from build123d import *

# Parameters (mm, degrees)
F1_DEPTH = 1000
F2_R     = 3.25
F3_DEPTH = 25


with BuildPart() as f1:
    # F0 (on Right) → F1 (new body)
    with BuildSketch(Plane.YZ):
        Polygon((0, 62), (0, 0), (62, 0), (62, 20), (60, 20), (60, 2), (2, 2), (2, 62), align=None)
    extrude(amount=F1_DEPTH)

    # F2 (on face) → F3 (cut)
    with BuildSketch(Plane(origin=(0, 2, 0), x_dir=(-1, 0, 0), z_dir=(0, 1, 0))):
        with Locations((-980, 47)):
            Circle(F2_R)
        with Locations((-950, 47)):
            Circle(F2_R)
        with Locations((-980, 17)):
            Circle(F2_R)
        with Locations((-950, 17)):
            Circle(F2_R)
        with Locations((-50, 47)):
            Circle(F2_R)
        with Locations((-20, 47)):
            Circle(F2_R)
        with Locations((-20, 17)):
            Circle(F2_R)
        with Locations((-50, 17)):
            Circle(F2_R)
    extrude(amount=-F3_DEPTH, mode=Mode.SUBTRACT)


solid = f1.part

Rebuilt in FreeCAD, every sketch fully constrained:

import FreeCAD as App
import Part
import Sketcher

V = App.Vector
Q = App.Units.Quantity

doc = App.newDocument("Part")
body = doc.addObject("PartDesign::Body", "Body")

sketch1 = doc.addObject("Sketcher::SketchObject", "Sketch")
body.addObject(sketch1)
sketch1.AttachmentSupport = (doc.YZ_Plane, [""])
sketch1.MapMode = "FlatFace"
sketch1.addGeometry(Part.LineSegment(V(0, 62, 0), V(0, 0, 0)), False)
sketch1.addGeometry(Part.LineSegment(V(0, 0, 0), V(62, 0, 0)), False)
sketch1.addGeometry(Part.LineSegment(V(62, 0, 0), V(62, 20, 0)), False)
sketch1.addGeometry(Part.LineSegment(V(62, 20, 0), V(60, 20, 0)), False)
sketch1.addGeometry(Part.LineSegment(V(60, 20, 0), V(60, 2, 0)), False)
sketch1.addGeometry(Part.LineSegment(V(60, 2, 0), V(2, 2, 0)), False)
sketch1.addGeometry(Part.LineSegment(V(2, 2, 0), V(2, 62, 0)), False)
sketch1.addGeometry(Part.LineSegment(V(2, 62, 0), V(0, 62, 0)), False)
sketch1.addConstraint(Sketcher.Constraint("Coincident", 0, 2, 1, 1))
sketch1.addConstraint(Sketcher.Constraint("Coincident", 1, 2, 2, 1))
sketch1.addConstraint(Sketcher.Constraint("Coincident", 2, 2, 3, 1))
sketch1.addConstraint(Sketcher.Constraint("Coincident", 3, 2, 4, 1))
sketch1.addConstraint(Sketcher.Constraint("Coincident", 4, 2, 5, 1))
sketch1.addConstraint(Sketcher.Constraint("Coincident", 5, 2, 6, 1))
sketch1.addConstraint(Sketcher.Constraint("Coincident", 6, 2, 7, 1))
sketch1.addConstraint(Sketcher.Constraint("Coincident", 7, 2, 0, 1))
sketch1.addConstraint(Sketcher.Constraint("Vertical", 0))
sketch1.addConstraint(Sketcher.Constraint("Horizontal", 1))
sketch1.addConstraint(Sketcher.Constraint("Vertical", 2))
sketch1.addConstraint(Sketcher.Constraint("Horizontal", 3))
sketch1.addConstraint(Sketcher.Constraint("Vertical", 4))
sketch1.addConstraint(Sketcher.Constraint("Horizontal", 5))
sketch1.addConstraint(Sketcher.Constraint("Vertical", 6))
sketch1.addConstraint(Sketcher.Constraint("Horizontal", 7))
sketch1.addConstraint(Sketcher.Constraint("Coincident", 0, 2, -1, 1))
sketch1.addConstraint(Sketcher.Constraint("Equal", 3, 7))
sketch1.addConstraint(Sketcher.Constraint("Equal", 1, 0))
sketch1.addConstraint(Sketcher.Constraint("DistanceX", 1, 1, 1, 2, Q("62 mm")))
sketch1.addConstraint(Sketcher.Constraint("DistanceX", 3, 2, 3, 1, Q("2 mm")))
sketch1.addConstraint(Sketcher.Constraint("DistanceY", 2, 1, 2, 2, Q("20 mm")))
sketch1.addConstraint(Sketcher.Constraint("DistanceY", 4, 2, 4, 1, Q("18 mm")))
pad1 = doc.addObject("PartDesign::Pad", "Pad")
body.addObject(pad1)
pad1.Profile = sketch1
pad1.Length = 1000

sketch2 = doc.addObject("Sketcher::SketchObject", "Sketch001")
body.addObject(sketch2)
sketch2.AttachmentSupport = (doc.XZ_Plane, [""])
sketch2.MapMode = "FlatFace"
sketch2.AttachmentOffset = App.Placement(V(0, 0, -2), App.Rotation())
sketch2.addGeometry(Part.Circle(V(980, 47, 0), V(0, 0, 1), 3.2), False)
sketch2.addGeometry(Part.Circle(V(950, 47, 0), V(0, 0, 1), 3.2), False)
sketch2.addGeometry(Part.Circle(V(980, 17, 0), V(0, 0, 1), 3.2), False)
sketch2.addGeometry(Part.Circle(V(950, 17, 0), V(0, 0, 1), 3.2), False)
sketch2.addGeometry(Part.Circle(V(50, 47, 0), V(0, 0, 1), 3.2), False)
sketch2.addGeometry(Part.Circle(V(20, 47, 0), V(0, 0, 1), 3.2), False)
sketch2.addGeometry(Part.Circle(V(20, 17, 0), V(0, 0, 1), 3.2), False)
sketch2.addGeometry(Part.Circle(V(50, 17, 0), V(0, 0, 1), 3.2), False)
sketch2.addConstraint(Sketcher.Constraint("Equal", 0, 1))
sketch2.addConstraint(Sketcher.Constraint("Equal", 1, 2))
sketch2.addConstraint(Sketcher.Constraint("Equal", 2, 3))
sketch2.addConstraint(Sketcher.Constraint("Equal", 3, 4))
sketch2.addConstraint(Sketcher.Constraint("Equal", 4, 5))
sketch2.addConstraint(Sketcher.Constraint("Equal", 5, 6))
sketch2.addConstraint(Sketcher.Constraint("Equal", 6, 7))
sketch2.addConstraint(Sketcher.Constraint("Horizontal", 0, 3, 1, 3))
sketch2.addConstraint(Sketcher.Constraint("Horizontal", 2, 3, 3, 3))
sketch2.addConstraint(Sketcher.Constraint("Horizontal", 1, 3, 4, 3))
sketch2.addConstraint(Sketcher.Constraint("Horizontal", 4, 3, 5, 3))
sketch2.addConstraint(Sketcher.Constraint("Horizontal", 3, 3, 6, 3))
sketch2.addConstraint(Sketcher.Constraint("Horizontal", 6, 3, 7, 3))
sketch2.addConstraint(Sketcher.Constraint("Vertical", 0, 3, 2, 3))
sketch2.addConstraint(Sketcher.Constraint("Vertical", 1, 3, 3, 3))
sketch2.addConstraint(Sketcher.Constraint("Vertical", 5, 3, 6, 3))
sketch2.addConstraint(Sketcher.Constraint("Vertical", 4, 3, 7, 3))
sketch2.addConstraint(Sketcher.Constraint("Diameter", 0, Q("6.5 mm")))
sketch2.addConstraint(Sketcher.Constraint("DistanceX", -1, 1, 0, 3, Q("980 mm")))
sketch2.addConstraint(Sketcher.Constraint("DistanceY", -1, 1, 0, 3, Q("47 mm")))
sketch2.addConstraint(Sketcher.Constraint("DistanceX", -1, 1, 1, 3, Q("950 mm")))
sketch2.addConstraint(Sketcher.Constraint("DistanceY", -1, 1, 2, 3, Q("17 mm")))
sketch2.addConstraint(Sketcher.Constraint("DistanceX", -1, 1, 4, 3, Q("50 mm")))
sketch2.addConstraint(Sketcher.Constraint("DistanceX", -1, 1, 5, 3, Q("20 mm")))
pocket1 = doc.addObject("PartDesign::Pocket", "Pocket")
body.addObject(pocket1)
pocket1.Profile = sketch2
pocket1.Length = 25
pocket1.Reversed = True

doc.recompute()
